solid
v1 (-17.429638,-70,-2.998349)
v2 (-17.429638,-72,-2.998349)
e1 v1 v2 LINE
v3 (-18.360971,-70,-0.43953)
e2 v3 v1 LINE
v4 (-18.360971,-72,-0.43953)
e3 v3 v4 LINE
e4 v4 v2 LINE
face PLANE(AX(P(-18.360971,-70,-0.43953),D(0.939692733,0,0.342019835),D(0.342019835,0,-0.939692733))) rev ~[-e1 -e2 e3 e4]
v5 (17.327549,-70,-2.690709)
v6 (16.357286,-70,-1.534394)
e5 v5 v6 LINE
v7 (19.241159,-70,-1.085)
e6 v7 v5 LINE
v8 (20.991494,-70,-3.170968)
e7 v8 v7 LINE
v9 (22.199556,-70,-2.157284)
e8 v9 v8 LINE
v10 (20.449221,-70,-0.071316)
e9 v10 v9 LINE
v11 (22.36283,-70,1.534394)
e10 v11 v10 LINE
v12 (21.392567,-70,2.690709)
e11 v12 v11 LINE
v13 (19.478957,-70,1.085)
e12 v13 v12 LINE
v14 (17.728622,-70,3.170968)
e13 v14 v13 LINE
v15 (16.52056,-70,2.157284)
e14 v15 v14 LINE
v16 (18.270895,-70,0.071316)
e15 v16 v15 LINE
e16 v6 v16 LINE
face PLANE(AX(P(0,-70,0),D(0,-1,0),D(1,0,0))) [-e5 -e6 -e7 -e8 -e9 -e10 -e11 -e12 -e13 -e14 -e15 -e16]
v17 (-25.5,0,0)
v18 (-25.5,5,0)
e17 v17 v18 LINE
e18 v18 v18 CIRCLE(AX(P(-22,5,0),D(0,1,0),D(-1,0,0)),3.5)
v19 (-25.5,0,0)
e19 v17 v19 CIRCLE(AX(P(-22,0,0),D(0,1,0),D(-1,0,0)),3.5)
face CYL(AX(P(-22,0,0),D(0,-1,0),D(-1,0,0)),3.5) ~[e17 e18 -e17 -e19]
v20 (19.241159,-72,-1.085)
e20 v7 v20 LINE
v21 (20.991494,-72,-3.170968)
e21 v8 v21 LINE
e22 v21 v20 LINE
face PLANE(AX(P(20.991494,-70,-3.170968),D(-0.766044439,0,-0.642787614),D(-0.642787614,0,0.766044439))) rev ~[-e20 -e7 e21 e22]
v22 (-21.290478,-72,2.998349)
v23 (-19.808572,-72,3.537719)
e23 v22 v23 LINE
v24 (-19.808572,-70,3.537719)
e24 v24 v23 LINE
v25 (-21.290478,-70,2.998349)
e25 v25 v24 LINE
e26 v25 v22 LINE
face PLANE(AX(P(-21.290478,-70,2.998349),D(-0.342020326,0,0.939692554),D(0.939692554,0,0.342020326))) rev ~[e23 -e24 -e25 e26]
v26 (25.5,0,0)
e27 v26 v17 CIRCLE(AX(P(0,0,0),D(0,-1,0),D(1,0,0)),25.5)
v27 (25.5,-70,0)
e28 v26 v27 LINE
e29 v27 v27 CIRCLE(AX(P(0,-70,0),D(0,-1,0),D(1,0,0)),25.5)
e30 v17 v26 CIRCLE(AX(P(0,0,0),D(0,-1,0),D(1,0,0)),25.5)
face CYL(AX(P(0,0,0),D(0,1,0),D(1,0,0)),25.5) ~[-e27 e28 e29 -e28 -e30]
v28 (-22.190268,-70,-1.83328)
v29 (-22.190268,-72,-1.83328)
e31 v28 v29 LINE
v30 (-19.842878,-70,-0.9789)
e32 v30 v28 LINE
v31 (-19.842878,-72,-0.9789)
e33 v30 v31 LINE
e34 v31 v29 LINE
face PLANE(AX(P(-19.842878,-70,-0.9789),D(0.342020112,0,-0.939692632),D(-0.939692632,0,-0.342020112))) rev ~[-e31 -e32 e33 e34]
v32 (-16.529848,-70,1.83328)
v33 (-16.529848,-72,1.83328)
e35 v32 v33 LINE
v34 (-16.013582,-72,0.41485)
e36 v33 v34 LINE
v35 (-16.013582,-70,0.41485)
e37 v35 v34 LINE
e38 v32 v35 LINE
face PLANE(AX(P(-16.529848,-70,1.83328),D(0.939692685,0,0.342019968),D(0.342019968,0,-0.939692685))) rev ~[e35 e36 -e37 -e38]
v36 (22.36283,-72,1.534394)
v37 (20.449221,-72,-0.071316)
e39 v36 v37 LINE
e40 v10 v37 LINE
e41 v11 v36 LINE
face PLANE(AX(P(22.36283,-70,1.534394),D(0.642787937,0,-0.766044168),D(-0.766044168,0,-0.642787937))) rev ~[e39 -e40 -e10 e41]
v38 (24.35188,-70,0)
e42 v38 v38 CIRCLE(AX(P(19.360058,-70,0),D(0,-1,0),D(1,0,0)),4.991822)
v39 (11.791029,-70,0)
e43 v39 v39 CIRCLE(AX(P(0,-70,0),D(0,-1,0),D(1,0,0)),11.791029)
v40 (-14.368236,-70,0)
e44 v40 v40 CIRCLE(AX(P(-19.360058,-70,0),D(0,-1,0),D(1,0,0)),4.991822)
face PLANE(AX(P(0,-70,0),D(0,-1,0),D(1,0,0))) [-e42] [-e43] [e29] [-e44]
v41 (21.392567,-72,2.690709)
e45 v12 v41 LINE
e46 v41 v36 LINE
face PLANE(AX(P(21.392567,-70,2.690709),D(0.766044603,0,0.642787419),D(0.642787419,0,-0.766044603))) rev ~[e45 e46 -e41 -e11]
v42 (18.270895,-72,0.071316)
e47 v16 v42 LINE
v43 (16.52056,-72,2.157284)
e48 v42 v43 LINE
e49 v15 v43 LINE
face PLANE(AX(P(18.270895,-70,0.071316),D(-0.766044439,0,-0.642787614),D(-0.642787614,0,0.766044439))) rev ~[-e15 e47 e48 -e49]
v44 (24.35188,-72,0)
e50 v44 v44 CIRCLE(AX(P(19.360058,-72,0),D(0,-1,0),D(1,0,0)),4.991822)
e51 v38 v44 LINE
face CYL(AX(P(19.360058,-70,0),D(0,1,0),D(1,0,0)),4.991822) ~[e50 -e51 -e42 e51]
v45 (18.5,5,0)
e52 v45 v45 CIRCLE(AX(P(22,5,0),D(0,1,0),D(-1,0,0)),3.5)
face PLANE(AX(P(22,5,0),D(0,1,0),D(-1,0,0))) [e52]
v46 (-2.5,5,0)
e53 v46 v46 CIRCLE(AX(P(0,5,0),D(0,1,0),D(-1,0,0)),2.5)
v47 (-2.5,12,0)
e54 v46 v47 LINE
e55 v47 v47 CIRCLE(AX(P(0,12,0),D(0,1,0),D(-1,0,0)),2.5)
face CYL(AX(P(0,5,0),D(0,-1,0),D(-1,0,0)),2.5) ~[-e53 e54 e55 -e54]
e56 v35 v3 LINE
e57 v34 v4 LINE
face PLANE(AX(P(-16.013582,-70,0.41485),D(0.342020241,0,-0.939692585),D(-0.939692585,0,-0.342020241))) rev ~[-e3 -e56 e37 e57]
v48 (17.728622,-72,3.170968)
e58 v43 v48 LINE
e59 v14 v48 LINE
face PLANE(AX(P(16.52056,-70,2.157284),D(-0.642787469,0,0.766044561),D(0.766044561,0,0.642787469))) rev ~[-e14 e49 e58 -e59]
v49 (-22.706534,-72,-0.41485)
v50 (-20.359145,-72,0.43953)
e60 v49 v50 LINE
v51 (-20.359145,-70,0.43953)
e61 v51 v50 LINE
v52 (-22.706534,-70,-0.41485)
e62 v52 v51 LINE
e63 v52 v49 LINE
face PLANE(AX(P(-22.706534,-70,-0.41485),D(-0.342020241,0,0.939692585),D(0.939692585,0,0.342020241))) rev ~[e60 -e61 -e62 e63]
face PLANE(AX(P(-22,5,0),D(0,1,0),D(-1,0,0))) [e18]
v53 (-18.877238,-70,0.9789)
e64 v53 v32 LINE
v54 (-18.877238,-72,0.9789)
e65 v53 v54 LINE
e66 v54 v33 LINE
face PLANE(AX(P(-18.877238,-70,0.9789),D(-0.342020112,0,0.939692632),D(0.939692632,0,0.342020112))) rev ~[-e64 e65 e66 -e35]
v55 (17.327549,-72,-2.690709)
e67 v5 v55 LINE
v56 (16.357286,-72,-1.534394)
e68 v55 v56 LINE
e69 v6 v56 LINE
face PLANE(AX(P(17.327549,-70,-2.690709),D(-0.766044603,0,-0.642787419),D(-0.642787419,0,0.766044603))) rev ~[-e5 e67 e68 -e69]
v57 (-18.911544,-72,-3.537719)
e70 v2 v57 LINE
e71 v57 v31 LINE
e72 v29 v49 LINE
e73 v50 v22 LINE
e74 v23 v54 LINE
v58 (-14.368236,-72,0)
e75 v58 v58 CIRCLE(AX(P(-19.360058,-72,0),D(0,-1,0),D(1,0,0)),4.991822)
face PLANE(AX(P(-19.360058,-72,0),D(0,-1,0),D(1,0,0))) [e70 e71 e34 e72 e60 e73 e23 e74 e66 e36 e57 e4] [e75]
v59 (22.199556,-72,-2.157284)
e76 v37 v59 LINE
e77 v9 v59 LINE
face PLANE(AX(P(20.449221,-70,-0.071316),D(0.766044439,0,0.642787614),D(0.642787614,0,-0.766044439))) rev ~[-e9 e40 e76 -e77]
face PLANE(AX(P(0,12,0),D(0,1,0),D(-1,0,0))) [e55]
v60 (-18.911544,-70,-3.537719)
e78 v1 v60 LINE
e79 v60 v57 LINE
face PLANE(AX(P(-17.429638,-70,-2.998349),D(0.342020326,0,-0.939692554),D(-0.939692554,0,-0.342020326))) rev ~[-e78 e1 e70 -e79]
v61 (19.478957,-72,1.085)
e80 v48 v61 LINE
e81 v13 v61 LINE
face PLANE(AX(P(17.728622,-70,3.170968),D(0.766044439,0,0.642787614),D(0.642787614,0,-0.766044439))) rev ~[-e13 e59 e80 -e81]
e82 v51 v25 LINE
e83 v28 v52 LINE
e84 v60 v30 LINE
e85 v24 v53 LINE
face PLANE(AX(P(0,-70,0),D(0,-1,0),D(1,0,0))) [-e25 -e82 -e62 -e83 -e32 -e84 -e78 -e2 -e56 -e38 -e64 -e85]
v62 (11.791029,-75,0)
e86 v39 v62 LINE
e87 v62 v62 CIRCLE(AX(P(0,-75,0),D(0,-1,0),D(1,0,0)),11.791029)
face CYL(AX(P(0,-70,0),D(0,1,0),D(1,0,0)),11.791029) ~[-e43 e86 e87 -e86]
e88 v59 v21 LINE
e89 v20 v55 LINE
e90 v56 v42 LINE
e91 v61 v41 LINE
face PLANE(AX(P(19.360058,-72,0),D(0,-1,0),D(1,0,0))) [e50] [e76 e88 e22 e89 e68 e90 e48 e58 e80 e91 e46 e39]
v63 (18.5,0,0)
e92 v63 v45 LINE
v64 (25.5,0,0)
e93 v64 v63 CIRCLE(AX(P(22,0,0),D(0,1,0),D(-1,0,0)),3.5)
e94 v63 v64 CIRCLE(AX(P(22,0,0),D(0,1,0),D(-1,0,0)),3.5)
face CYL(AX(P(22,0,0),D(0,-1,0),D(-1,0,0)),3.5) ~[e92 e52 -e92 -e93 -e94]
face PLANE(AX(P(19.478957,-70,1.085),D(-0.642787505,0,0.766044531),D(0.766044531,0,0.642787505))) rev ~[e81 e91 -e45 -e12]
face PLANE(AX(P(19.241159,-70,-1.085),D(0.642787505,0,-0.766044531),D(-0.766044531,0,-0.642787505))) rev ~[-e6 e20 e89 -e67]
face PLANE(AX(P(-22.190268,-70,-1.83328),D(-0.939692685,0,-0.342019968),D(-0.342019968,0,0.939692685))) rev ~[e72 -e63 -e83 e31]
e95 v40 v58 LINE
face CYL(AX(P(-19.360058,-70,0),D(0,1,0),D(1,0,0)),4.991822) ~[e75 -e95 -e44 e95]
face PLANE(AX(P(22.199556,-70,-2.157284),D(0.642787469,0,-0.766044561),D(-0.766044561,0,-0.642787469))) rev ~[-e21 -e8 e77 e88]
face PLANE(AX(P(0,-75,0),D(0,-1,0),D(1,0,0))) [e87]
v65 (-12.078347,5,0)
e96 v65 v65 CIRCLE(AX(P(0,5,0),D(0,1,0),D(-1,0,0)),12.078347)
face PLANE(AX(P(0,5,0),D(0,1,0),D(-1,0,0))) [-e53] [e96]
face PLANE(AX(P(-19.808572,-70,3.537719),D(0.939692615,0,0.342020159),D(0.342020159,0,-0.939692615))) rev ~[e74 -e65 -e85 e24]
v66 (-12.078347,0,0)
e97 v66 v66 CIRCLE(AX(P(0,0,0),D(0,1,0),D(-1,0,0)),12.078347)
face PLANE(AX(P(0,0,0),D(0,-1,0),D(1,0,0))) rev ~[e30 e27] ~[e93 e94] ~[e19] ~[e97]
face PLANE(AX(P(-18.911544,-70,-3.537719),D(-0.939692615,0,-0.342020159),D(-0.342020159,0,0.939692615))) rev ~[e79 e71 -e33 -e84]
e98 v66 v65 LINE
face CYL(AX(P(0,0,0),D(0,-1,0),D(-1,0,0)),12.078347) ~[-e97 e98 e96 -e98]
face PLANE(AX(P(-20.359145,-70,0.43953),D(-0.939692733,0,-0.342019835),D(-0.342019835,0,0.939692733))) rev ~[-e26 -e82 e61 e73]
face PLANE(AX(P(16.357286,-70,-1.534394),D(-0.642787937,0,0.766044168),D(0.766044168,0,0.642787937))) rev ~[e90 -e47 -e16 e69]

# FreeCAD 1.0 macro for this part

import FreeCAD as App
import Part
import Sketcher

V = App.Vector
Q = App.Units.Quantity

doc = App.newDocument("Part")
body = doc.addObject("PartDesign::Body", "Body")

# Sketch on XZ plane
sketch1 = body.newObject("Sketcher::SketchObject", "Sketch")
sketch1.AttachmentSupport = (doc.getObject("XZ_Plane"), [""])
sketch1.MapMode = "FlatFace"
sketch1.addGeometry(Part.Circle(V(0, 0, 0), V(0, 0, 1), 26), False)
sketch1.addConstraint([
    Sketcher.Constraint("Coincident", 0, 3, -1, 1),
    Sketcher.Constraint("Diameter", 0, 51.0),
])
pad1 = body.newObject("PartDesign::Pad", "Pad")
pad1.Profile = sketch1
pad1.Length = 70

# Sketch on XZ plane
sketch2 = body.newObject("Sketcher::SketchObject", "Sketch001")
sketch2.AttachmentSupport = (doc.getObject("XZ_Plane"), [""])
sketch2.MapMode = "FlatFace"
sketch2.AttachmentOffset = App.Placement(V(0, 0, 70), App.Rotation())
sketch2.addGeometry(Part.Circle(V(0, 0, 0), V(0, 0, 1), 12), False)
sketch2.addConstraint([
    Sketcher.Constraint("Coincident", 0, 3, -1, 1),
    Sketcher.Constraint("Diameter", 0, 23.582058),
])
pad2 = body.newObject("PartDesign::Pad", "Pad001")
pad2.Profile = sketch2
pad2.Length = 5

# Sketch on XZ plane
sketch3 = body.newObject("Sketcher::SketchObject", "Sketch002")
sketch3.AttachmentSupport = (doc.getObject("XZ_Plane"), [""])
sketch3.MapMode = "FlatFace"
sketch3.addGeometry([
    Part.Circle(V(0, 0, 0), V(0, 0, 1), 12.1),
    Part.Circle(V(22, 0, 0), V(0, 0, 1), 3.5),
    Part.Circle(V(-22, 0, 0), V(0, 0, 1), 3.5),
], False)
sketch3.addConstraint([
    Sketcher.Constraint("Coincident", 0, 3, -1, 1),
    Sketcher.Constraint("Equal", 1, 2),
    Sketcher.Constraint("Symmetric", 1, 3, 2, 3, -1, 1),
    Sketcher.Constraint("PointOnObject", 1, 3, -1),
    Sketcher.Constraint("Diameter", 1, 7.0),
    Sketcher.Constraint("DistanceX", -1, 1, 1, 3, 22.0),
    Sketcher.Constraint("Diameter", 0, 24.156694),
])
pad3 = body.newObject("PartDesign::Pad", "Pad002")
pad3.Profile = sketch3
pad3.Length = 5
pad3.Reversed = True

# Sketch on XZ plane
sketch4 = body.newObject("Sketcher::SketchObject", "Sketch003")
sketch4.AttachmentSupport = (doc.getObject("XZ_Plane"), [""])
sketch4.MapMode = "FlatFace"
sketch4.AttachmentOffset = App.Placement(V(0, 0, -5), App.Rotation())
sketch4.addGeometry(Part.Circle(V(0, 0, 0), V(0, 0, 1), 2.5), False)
sketch4.addConstraint([
    Sketcher.Constraint("Coincident", 0, 3, -1, 1),
    Sketcher.Constraint("Diameter", 0, 5.0),
])
pad4 = body.newObject("PartDesign::Pad", "Pad003")
pad4.Profile = sketch4
pad4.Length = 7
pad4.Reversed = True

# Sketch on XZ plane
sketch5 = body.newObject("Sketcher::SketchObject", "Sketch004")
sketch5.AttachmentSupport = (doc.getObject("XZ_Plane"), [""])
sketch5.MapMode = "FlatFace"
sketch5.AttachmentOffset = App.Placement(V(0, 0, 70), App.Rotation())
sketch5.addGeometry([
    Part.Circle(V(-19.4, 0, 0), V(0, 0, 1), 5),  # 0
    Part.LineSegment(V(-22.7, -0.4, 0), V(-20.4, 0.4, 0)),  # 1
    Part.LineSegment(V(-20.4, 0.4, 0), V(-21.3, 3, 0)),  # 2
    Part.LineSegment(V(-21.3, 3, 0), V(-19.8, 3.5, 0)),  # 3
    Part.LineSegment(V(-19.8, 3.5, 0), V(-18.9, 1, 0)),  # 4
    Part.LineSegment(V(-18.9, 1, 0), V(-16.5, 1.8, 0)),  # 5
    Part.LineSegment(V(-16.5, 1.8, 0), V(-16, 0.4, 0)),  # 6
    Part.LineSegment(V(-16, 0.4, 0), V(-18.4, -0.4, 0)),  # 7
    Part.LineSegment(V(-18.4, -0.4, 0), V(-17.4, -3, 0)),  # 8
    Part.LineSegment(V(-17.4, -3, 0), V(-18.9, -3.5, 0)),  # 9
    Part.LineSegment(V(-18.9, -3.5, 0), V(-19.8, -1, 0)),  # 10
    Part.LineSegment(V(-19.8, -1, 0), V(-22.2, -1.8, 0)),  # 11
    Part.LineSegment(V(-22.2, -1.8, 0), V(-22.7, -0.4, 0)),  # 12
    Part.Circle(V(19.4, 0, 0), V(0, 0, 1), 5),  # 13
    Part.LineSegment(V(21, -3.2, 0), V(19.2, -1.1, 0)),  # 14
    Part.LineSegment(V(19.2, -1.1, 0), V(17.3, -2.7, 0)),  # 15
    Part.LineSegment(V(17.3, -2.7, 0), V(16.4, -1.5, 0)),  # 16
    Part.LineSegment(V(16.4, -1.5, 0), V(18.3, 0.1, 0)),  # 17
    Part.LineSegment(V(18.3, 0.1, 0), V(16.5, 2.2, 0)),  # 18
    Part.LineSegment(V(16.5, 2.2, 0), V(17.7, 3.2, 0)),  # 19
    Part.LineSegment(V(17.7, 3.2, 0), V(19.5, 1.1, 0)),  # 20
    Part.LineSegment(V(19.5, 1.1, 0), V(21.4, 2.7, 0)),  # 21
    Part.LineSegment(V(21.4, 2.7, 0), V(22.4, 1.5, 0)),  # 22
    Part.LineSegment(V(22.4, 1.5, 0), V(20.4, -0.1, 0)),  # 23
    Part.LineSegment(V(20.4, -0.1, 0), V(22.2, -2.2, 0)),  # 24
    Part.LineSegment(V(22.2, -2.2, 0), V(21, -3.2, 0)),  # 25
], False)
sketch5.addConstraint([
    Sketcher.Constraint("Coincident", 1, 2, 2, 1),
    Sketcher.Constraint("Coincident", 2, 2, 3, 1),
    Sketcher.Constraint("Coincident", 3, 2, 4, 1),
    Sketcher.Constraint("Coincident", 4, 2, 5, 1),
    Sketcher.Constraint("Coincident", 5, 2, 6, 1),
    Sketcher.Constraint("Coincident", 6, 2, 7, 1),
    Sketcher.Constraint("Coincident", 7, 2, 8, 1),
    Sketcher.Constraint("Coincident", 8, 2, 9, 1),
    Sketcher.Constraint("Coincident", 9, 2, 10, 1),
    Sketcher.Constraint("Coincident", 10, 2, 11, 1),
    Sketcher.Constraint("Coincident", 11, 2, 12, 1),
    Sketcher.Constraint("Coincident", 12, 2, 1, 1),
    Sketcher.Constraint("Coincident", 14, 2, 15, 1),
    Sketcher.Constraint("Coincident", 15, 2, 16, 1),
    Sketcher.Constraint("Coincident", 16, 2, 17, 1),
    Sketcher.Constraint("Coincident", 17, 2, 18, 1),
    Sketcher.Constraint("Coincident", 18, 2, 19, 1),
    Sketcher.Constraint("Coincident", 19, 2, 20, 1),
    Sketcher.Constraint("Coincident", 20, 2, 21, 1),
    Sketcher.Constraint("Coincident", 21, 2, 22, 1),
    Sketcher.Constraint("Coincident", 22, 2, 23, 1),
    Sketcher.Constraint("Coincident", 23, 2, 24, 1),
    Sketcher.Constraint("Coincident", 24, 2, 25, 1),
    Sketcher.Constraint("Coincident", 25, 2, 14, 1),
    Sketcher.Constraint("Equal", 0, 13),
    Sketcher.Constraint("Symmetric", 0, 3, 13, 3, -1, 1),
    Sketcher.Constraint("PointOnObject", 0, 3, -1),
    Sketcher.Constraint("Perpendicular", 1, 2),
    Sketcher.Constraint("Perpendicular", 2, 3),
    Sketcher.Constraint("Perpendicular", 3, 4),
    Sketcher.Constraint("Perpendicular", 4, 5),
    Sketcher.Constraint("Perpendicular", 5, 6),
    Sketcher.Constraint("Perpendicular", 6, 7),
    Sketcher.Constraint("Perpendicular", 7, 8),
    Sketcher.Constraint("Perpendicular", 8, 9),
    Sketcher.Constraint("Perpendicular", 9, 10),
    Sketcher.Constraint("Perpendicular", 10, 11),
    Sketcher.Constraint("Perpendicular", 11, 12),
    Sketcher.Constraint("Perpendicular", 14, 15),
    Sketcher.Constraint("Perpendicular", 15, 16),
    Sketcher.Constraint("Perpendicular", 16, 17),
    Sketcher.Constraint("Perpendicular", 17, 18),
    Sketcher.Constraint("Perpendicular", 18, 19),
    Sketcher.Constraint("Perpendicular", 19, 20),
    Sketcher.Constraint("Perpendicular", 20, 21),
    Sketcher.Constraint("Perpendicular", 21, 22),
    Sketcher.Constraint("Perpendicular", 22, 23),
    Sketcher.Constraint("Perpendicular", 23, 24),
    Sketcher.Constraint("Perpendicular", 24, 25),
    Sketcher.Constraint("Equal", 2, 4),
    Sketcher.Constraint("Equal", 1, 5),
    Sketcher.Constraint("Equal", 5, 7),
    Sketcher.Constraint("Equal", 4, 8),
    Sketcher.Constraint("Equal", 3, 9),
    Sketcher.Constraint("Equal", 8, 10),
    Sketcher.Constraint("Equal", 10, 14),
    Sketcher.Constraint("Equal", 11, 15),
    Sketcher.Constraint("Equal", 12, 16),
    Sketcher.Constraint("Equal", 15, 17),
    Sketcher.Constraint("Equal", 14, 18),
    Sketcher.Constraint("Equal", 9, 19),
    Sketcher.Constraint("Equal", 18, 20),
    Sketcher.Constraint("Equal", 17, 21),
    Sketcher.Constraint("Equal", 16, 22),
    Sketcher.Constraint("Equal", 21, 23),
    Sketcher.Constraint("Angle", 1, Q("20.000006 deg")),
    Sketcher.Constraint("Angle", 14, Q("130 deg")),
    Sketcher.Constraint("DistanceY", 14, 2, 20, 2, 2.17),
    Sketcher.Constraint("Diameter", 0, 9.983644),
    Sketcher.Constraint("DistanceY", 14, 2, -1, 1, 1.085),
    Sketcher.Constraint("DistanceY", -1, 1, 4, 2, 0.9789),
    Sketcher.Constraint("DistanceY", 10, 2, -1, 1, 0.9789),
    Sketcher.Constraint("DistanceY", 8, 2, 6, 2, 3.413199),
    Sketcher.Constraint("DistanceX", 4, 2, 8, 2, 1.4476),
    Sketcher.Constraint("DistanceX", 14, 2, 13, 3, 0.118899),
    Sketcher.Constraint("DistanceX", 2, 2, -1, 1, 21.290478),
    Sketcher.Constraint("DistanceX", -1, 1, 14, 2, 19.241159),
])
pad5 = body.newObject("PartDesign::Pad", "Pad004")
pad5.Profile = sketch5
pad5.Length = 2

doc.recompute()
